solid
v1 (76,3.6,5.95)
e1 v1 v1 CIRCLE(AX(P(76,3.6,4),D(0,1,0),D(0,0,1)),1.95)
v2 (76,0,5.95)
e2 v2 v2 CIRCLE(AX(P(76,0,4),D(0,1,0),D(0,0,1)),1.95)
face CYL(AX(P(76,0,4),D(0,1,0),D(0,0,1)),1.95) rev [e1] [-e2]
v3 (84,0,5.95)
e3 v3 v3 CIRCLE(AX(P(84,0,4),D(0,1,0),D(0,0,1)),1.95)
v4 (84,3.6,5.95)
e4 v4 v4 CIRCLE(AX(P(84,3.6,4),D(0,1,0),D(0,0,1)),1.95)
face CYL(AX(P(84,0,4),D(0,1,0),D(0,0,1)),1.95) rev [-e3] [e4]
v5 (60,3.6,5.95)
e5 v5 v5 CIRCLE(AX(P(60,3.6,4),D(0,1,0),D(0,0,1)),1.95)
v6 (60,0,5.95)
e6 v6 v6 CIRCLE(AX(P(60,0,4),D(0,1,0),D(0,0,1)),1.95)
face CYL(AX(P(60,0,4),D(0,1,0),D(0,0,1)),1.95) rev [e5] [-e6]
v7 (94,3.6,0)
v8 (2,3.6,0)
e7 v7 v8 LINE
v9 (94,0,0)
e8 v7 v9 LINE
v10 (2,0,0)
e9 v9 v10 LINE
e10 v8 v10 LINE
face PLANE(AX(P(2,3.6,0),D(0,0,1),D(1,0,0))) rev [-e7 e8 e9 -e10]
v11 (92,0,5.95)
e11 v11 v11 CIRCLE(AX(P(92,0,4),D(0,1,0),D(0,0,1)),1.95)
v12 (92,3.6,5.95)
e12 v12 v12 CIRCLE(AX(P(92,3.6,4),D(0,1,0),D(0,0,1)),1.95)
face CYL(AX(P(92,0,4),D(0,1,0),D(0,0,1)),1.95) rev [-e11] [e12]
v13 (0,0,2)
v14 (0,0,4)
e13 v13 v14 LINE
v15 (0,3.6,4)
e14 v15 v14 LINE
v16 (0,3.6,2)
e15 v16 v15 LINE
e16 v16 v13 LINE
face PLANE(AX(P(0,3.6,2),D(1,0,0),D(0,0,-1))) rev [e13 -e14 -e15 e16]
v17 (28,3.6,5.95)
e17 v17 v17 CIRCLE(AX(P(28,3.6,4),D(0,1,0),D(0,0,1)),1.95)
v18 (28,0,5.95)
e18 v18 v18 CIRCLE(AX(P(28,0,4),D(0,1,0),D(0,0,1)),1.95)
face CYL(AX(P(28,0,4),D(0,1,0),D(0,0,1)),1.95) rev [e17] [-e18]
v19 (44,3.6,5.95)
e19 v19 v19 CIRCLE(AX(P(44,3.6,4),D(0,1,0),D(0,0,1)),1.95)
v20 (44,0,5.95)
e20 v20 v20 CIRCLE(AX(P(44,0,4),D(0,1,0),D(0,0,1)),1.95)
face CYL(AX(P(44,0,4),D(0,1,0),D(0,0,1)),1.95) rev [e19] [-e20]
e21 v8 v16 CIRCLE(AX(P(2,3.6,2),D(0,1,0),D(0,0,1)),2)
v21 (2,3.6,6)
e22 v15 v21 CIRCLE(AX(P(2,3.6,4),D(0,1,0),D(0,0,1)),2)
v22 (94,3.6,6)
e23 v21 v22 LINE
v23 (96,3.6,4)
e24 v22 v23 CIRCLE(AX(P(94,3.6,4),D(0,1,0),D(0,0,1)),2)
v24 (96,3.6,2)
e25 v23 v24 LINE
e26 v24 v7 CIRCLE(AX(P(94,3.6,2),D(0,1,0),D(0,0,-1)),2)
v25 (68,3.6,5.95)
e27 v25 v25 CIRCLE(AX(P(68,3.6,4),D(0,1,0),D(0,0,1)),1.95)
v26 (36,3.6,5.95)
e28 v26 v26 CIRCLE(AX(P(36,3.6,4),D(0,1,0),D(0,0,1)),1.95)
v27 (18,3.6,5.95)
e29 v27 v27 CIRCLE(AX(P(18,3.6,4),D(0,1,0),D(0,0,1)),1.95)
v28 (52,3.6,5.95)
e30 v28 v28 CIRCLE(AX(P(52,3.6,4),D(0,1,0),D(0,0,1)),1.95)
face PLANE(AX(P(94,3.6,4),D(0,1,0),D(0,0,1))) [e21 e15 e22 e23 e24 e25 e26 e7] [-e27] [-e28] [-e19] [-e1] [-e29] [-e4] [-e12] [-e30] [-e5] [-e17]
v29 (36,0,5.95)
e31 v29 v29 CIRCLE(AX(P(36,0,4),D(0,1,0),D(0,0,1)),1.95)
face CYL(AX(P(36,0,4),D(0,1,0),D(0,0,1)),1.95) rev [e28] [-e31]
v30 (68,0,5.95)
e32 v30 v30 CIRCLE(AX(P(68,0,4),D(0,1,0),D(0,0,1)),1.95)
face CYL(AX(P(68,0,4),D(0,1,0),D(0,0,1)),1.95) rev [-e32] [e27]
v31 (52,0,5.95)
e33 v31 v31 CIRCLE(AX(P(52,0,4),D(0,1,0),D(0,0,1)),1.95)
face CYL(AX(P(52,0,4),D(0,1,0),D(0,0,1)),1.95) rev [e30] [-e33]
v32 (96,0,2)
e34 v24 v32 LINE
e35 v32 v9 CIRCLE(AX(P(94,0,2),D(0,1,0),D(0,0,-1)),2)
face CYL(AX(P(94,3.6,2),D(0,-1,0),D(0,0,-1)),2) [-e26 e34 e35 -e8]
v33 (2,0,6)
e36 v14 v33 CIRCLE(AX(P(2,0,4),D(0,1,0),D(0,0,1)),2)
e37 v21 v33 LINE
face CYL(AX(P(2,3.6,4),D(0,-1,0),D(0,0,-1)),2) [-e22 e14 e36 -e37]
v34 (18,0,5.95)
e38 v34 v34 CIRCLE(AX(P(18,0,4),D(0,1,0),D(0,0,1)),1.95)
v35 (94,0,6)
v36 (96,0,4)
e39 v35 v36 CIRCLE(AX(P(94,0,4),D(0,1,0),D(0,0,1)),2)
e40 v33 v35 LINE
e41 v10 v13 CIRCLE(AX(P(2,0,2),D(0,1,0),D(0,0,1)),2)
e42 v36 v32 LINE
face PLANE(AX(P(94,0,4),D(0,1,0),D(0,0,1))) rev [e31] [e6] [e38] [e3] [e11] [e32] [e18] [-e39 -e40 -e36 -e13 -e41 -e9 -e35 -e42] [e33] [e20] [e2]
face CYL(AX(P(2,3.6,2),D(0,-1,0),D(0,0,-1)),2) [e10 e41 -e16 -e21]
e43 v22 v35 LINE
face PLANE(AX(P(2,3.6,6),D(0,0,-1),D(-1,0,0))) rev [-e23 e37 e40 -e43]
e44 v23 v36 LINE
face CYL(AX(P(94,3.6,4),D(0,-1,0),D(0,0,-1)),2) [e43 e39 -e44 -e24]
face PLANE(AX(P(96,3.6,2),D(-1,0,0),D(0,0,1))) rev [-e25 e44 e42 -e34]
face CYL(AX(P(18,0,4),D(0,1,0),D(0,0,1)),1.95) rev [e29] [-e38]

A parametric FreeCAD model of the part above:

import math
import FreeCAD as App
import Part
import Sketcher

V = App.Vector
Q = App.Units.Quantity

doc = App.newDocument("Part")
params = doc.addObject("Spreadsheet::Sheet", "Params")
for row, (alias, value) in enumerate([
    ("sketch1_radius", "2 mm"),
    ("sketch1_width", "92 mm"),
    ("sketch1_height", "2 mm"),
    ("pad1_length", "3.6 mm"),
    ("sketch2_diameter", "3.9 mm"),
    ("pocket1_length", "3.6 mm"),
], start=1):
    params.set(f"A{row}", alias)
    params.set(f"B{row}", "=" + value)
    params.setAlias(f"B{row}", alias)

body = doc.addObject("PartDesign::Body", "Body")

# Sketch on XZ plane
sketch1 = body.newObject("Sketcher::SketchObject", "Sketch")
sketch1.AttachmentSupport = (doc.getObject("XZ_Plane"), [""])
sketch1.MapMode = "FlatFace"
sketch1.addGeometry([
    Part.LineSegment(V(94, 0, 0), V(2, 0, 0)),  # 0
    Part.ArcOfCircle(Part.Circle(V(2, 2, 0), V(0, 0, 1), 2), math.radians(-180), math.radians(-90)),  # 1
    Part.LineSegment(V(0, 2, 0), V(0, 4, 0)),  # 2
    Part.ArcOfCircle(Part.Circle(V(2, 4, 0), V(0, 0, 1), 2), math.radians(90), math.radians(180)),  # 3
    Part.LineSegment(V(2, 6, 0), V(94, 6, 0)),  # 4
    Part.ArcOfCircle(Part.Circle(V(94, 4, 0), V(0, 0, 1), 2), math.radians(0), math.radians(90)),  # 5
    Part.LineSegment(V(96, 4, 0), V(96, 2, 0)),  # 6
    Part.ArcOfCircle(Part.Circle(V(94, 2, 0), V(0, 0, 1), 2), math.radians(-90), math.radians(0)),  # 7
], False)
sketch1.addConstraint([
    Sketcher.Constraint("Tangent", 0, 2, 1, 2),
    Sketcher.Constraint("Tangent", 1, 1, 2, 1),
    Sketcher.Constraint("Tangent", 2, 2, 3, 2),
    Sketcher.Constraint("Tangent", 3, 1, 4, 1),
    Sketcher.Constraint("Tangent", 4, 2, 5, 2),
    Sketcher.Constraint("Tangent", 5, 1, 6, 1),
    Sketcher.Constraint("Tangent", 6, 2, 7, 2),
    Sketcher.Constraint("Tangent", 7, 1, 0, 1),
    Sketcher.Constraint("Horizontal", 0),
    Sketcher.Constraint("Vertical", 2),
    Sketcher.Constraint("Horizontal", 4),
    Sketcher.Constraint("Vertical", 6),
    Sketcher.Constraint("Equal", 1, 3),
    Sketcher.Constraint("Equal", 3, 5),
    Sketcher.Constraint("Equal", 5, 7),
    Sketcher.Constraint("PointOnObject", 0, 2, -1),
    Sketcher.Constraint("PointOnObject", 1, 1, -2),
    Sketcher.Constraint("Radius", 1, Q("2 mm")),
    Sketcher.Constraint("DistanceX", 0, 2, 0, 1, Q("92 mm")),
    Sketcher.Constraint("DistanceY", 2, 1, 2, 2, Q("2 mm")),
])
sketch1.setExpression("Constraints[17]", "Params.sketch1_radius")
sketch1.setExpression("Constraints[18]", "Params.sketch1_width")
sketch1.setExpression("Constraints[19]", "Params.sketch1_height")
pad1 = body.newObject("PartDesign::Pad", "Pad")
pad1.Profile = sketch1
pad1.setExpression("Length", "Params.pad1_length")
pad1.Reversed = True

# Sketch on XZ plane
sketch2 = body.newObject("Sketcher::SketchObject", "Sketch001")
sketch2.AttachmentSupport = (doc.getObject("XZ_Plane"), [""])
sketch2.MapMode = "FlatFace"
sketch2.AttachmentOffset = App.Placement(V(0, 0, -3.6), App.Rotation())
sketch2.addGeometry([
    Part.Circle(V(92, 4, 0), V(0, 0, 1), 1.95),  # 0
    Part.Circle(V(84, 4, 0), V(0, 0, 1), 1.95),  # 1
    Part.Circle(V(18, 4, 0), V(0, 0, 1), 1.95),  # 2
    Part.Circle(V(28, 4, 0), V(0, 0, 1), 1.95),  # 3
    Part.Circle(V(36, 4, 0), V(0, 0, 1), 1.95),  # 4
    Part.Circle(V(44, 4, 0), V(0, 0, 1), 1.95),  # 5
    Part.Circle(V(52, 4, 0), V(0, 0, 1), 1.95),  # 6
    Part.Circle(V(60, 4, 0), V(0, 0, 1), 1.95),  # 7
    Part.Circle(V(68, 4, 0), V(0, 0, 1), 1.95),  # 8
    Part.Circle(V(76, 4, 0), V(0, 0, 1), 1.95),  # 9
], False)
sketch2.addConstraint([
    Sketcher.Constraint("Equal", 0, 1),
    Sketcher.Constraint("Equal", 1, 2),
    Sketcher.Constraint("Equal", 2, 3),
    Sketcher.Constraint("Equal", 3, 4),
    Sketcher.Constraint("Equal", 4, 5),
    Sketcher.Constraint("Equal", 5, 6),
    Sketcher.Constraint("Equal", 6, 7),
    Sketcher.Constraint("Equal", 7, 8),
    Sketcher.Constraint("Equal", 8, 9),
    Sketcher.Constraint("Horizontal", 0, 3, 1, 3),
    Sketcher.Constraint("Horizontal", 1, 3, 2, 3),
    Sketcher.Constraint("Horizontal", 2, 3, 3, 3),
    Sketcher.Constraint("Horizontal", 3, 3, 4, 3),
    Sketcher.Constraint("Horizontal", 4, 3, 5, 3),
    Sketcher.Constraint("Horizontal", 5, 3, 6, 3),
    Sketcher.Constraint("Horizontal", 6, 3, 7, 3),
    Sketcher.Constraint("Horizontal", 7, 3, 8, 3),
    Sketcher.Constraint("Horizontal", 8, 3, 9, 3),
    Sketcher.Constraint("Diameter", 0, Q("3.9 mm")),
    Sketcher.Constraint("DistanceX", -1, 1, 0, 3, Q("92 mm")),
    Sketcher.Constraint("DistanceY", -1, 1, 0, 3, Q("4 mm")),
    Sketcher.Constraint("DistanceX", -1, 1, 1, 3, Q("84 mm")),
    Sketcher.Constraint("DistanceX", -1, 1, 2, 3, Q("18 mm")),
    Sketcher.Constraint("DistanceX", -1, 1, 3, 3, Q("28 mm")),
    Sketcher.Constraint("DistanceX", -1, 1, 4, 3, Q("36 mm")),
    Sketcher.Constraint("DistanceX", -1, 1, 5, 3, Q("44 mm")),
    Sketcher.Constraint("DistanceX", -1, 1, 6, 3, Q("52 mm")),
    Sketcher.Constraint("DistanceX", -1, 1, 7, 3, Q("60 mm")),
    Sketcher.Constraint("DistanceX", -1, 1, 8, 3, Q("68 mm")),
    Sketcher.Constraint("DistanceX", -1, 1, 9, 3, Q("76 mm")),
])
sketch2.setExpression("Constraints[18]", "Params.sketch2_diameter")
pocket1 = body.newObject("PartDesign::Pocket", "Pocket")
pocket1.Profile = sketch2
pocket1.setExpression("Length", "Params.pocket1_length")
pocket1.Reversed = True

doc.recompute()
